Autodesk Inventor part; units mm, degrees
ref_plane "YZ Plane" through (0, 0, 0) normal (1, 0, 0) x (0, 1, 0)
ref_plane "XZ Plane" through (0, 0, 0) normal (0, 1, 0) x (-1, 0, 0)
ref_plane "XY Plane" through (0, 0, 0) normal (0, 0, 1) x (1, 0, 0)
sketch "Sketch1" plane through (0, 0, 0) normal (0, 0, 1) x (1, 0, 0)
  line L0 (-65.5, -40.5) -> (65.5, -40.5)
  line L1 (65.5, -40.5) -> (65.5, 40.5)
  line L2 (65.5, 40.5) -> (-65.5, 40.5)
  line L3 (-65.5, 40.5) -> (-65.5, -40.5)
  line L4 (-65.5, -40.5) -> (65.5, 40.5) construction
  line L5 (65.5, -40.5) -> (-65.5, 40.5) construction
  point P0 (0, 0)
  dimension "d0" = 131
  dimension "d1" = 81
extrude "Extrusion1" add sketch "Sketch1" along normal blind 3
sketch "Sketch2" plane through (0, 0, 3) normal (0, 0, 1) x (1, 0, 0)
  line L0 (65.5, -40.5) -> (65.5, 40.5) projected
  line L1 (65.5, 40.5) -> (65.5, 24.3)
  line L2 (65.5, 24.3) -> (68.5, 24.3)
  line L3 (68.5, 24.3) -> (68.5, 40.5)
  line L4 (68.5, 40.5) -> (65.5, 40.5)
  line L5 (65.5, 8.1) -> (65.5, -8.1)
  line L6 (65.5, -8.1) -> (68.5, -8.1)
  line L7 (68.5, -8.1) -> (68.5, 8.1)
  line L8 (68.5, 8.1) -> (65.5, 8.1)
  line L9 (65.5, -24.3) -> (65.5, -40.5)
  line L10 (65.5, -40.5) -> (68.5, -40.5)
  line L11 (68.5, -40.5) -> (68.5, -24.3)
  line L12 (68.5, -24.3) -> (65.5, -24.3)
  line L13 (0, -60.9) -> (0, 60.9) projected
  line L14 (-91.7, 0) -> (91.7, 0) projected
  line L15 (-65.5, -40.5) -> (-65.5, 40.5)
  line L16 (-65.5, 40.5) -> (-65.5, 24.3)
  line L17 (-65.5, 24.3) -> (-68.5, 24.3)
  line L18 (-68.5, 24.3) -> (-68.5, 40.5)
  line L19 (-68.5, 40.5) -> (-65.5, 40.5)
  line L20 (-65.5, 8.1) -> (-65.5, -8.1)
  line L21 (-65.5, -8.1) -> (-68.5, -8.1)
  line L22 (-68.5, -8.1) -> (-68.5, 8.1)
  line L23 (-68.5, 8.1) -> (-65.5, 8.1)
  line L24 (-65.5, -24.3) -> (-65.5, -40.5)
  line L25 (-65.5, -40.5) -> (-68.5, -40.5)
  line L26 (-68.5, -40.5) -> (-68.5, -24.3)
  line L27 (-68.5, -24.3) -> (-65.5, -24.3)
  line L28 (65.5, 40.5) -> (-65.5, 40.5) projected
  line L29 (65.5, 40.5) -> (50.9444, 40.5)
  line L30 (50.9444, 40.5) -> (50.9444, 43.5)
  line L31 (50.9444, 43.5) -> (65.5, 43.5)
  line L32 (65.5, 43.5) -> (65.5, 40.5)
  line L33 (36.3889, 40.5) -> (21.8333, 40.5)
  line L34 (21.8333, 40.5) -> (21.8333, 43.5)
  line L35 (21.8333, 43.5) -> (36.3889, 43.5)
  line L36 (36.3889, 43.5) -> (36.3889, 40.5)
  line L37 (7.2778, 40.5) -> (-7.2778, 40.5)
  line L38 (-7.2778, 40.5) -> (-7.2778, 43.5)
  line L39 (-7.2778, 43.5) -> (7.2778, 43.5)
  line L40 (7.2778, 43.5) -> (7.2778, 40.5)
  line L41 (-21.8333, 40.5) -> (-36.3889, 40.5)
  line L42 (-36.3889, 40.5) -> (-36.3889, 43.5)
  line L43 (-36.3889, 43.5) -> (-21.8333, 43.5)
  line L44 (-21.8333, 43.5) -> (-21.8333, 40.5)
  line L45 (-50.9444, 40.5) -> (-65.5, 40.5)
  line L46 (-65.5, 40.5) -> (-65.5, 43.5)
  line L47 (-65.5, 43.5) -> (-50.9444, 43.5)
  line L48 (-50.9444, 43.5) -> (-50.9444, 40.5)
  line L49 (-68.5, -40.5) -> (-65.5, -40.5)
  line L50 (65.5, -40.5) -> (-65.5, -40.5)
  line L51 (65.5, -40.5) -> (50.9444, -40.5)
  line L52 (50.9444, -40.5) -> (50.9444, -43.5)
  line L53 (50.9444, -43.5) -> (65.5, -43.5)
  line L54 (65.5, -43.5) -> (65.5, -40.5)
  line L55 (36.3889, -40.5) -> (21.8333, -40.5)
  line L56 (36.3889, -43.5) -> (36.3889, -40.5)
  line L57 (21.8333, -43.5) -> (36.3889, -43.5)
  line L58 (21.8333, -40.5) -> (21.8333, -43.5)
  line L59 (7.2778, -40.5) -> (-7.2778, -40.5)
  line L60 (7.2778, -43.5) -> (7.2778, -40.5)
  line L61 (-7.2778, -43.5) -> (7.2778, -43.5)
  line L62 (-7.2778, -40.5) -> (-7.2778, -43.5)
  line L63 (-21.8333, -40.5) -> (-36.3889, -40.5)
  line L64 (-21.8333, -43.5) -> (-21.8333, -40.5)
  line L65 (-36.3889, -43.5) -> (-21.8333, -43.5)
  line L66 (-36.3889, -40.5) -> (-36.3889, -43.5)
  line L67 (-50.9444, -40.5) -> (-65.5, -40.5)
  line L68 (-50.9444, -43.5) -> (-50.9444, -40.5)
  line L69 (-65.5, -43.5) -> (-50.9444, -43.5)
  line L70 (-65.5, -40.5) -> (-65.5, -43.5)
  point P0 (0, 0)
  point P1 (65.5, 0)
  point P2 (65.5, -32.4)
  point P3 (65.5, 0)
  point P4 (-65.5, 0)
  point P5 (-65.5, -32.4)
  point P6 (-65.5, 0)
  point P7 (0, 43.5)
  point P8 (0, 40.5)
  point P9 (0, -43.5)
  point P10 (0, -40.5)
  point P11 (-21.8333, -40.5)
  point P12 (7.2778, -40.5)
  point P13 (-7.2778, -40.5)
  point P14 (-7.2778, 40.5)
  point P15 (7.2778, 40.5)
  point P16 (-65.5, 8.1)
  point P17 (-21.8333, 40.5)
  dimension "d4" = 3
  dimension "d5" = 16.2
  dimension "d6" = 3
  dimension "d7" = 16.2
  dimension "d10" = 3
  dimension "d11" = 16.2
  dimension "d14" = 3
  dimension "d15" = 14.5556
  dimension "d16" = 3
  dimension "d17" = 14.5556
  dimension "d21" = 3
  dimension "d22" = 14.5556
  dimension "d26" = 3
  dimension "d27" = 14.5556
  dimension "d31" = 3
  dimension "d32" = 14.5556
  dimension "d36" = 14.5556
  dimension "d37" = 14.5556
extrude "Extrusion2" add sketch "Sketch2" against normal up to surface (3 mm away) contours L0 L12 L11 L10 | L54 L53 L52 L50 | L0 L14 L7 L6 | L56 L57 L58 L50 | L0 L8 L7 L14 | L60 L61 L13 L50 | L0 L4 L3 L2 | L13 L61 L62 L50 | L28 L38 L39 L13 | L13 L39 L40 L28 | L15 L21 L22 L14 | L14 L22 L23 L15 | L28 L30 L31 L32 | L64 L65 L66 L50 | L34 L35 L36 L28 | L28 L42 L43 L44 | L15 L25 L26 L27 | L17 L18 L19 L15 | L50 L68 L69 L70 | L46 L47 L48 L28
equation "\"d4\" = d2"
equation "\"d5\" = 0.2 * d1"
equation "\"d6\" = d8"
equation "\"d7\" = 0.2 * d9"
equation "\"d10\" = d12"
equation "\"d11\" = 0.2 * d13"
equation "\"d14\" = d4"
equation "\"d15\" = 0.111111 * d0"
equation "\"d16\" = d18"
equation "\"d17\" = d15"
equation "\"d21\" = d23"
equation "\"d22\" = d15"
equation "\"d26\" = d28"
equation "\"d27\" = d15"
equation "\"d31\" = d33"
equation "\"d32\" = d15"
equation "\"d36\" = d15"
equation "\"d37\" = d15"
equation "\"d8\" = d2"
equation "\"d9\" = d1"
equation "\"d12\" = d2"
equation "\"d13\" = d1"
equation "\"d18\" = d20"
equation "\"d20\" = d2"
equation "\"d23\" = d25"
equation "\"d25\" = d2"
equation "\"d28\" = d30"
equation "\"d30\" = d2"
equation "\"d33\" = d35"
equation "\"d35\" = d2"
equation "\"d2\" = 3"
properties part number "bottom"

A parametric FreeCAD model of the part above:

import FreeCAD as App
import Part
import Sketcher

V = App.Vector

doc = App.newDocument("Part")
body = doc.addObject("PartDesign::Body", "Body")

sketch1 = body.newObject("Sketcher::SketchObject", "Sketch")
sketch1.AttachmentSupport = (doc.getObject("XY_Plane"), [""])
sketch1.MapMode = "FlatFace"
sketch1.addGeometry(Part.LineSegment(V(-66, 40, 0), V(-66, -40, 0)), False)
sketch1.addGeometry(Part.LineSegment(V(-66, -40, 0), V(66, -40, 0)), False)
sketch1.addGeometry(Part.LineSegment(V(66, -40, 0), V(66, 40, 0)), False)
sketch1.addGeometry(Part.LineSegment(V(66, 40, 0), V(-66, 40, 0)), False)
sketch1.addConstraint(Sketcher.Constraint("Coincident", 0, 2, 1, 1))
sketch1.addConstraint(Sketcher.Constraint("Coincident", 1, 2, 2, 1))
sketch1.addConstraint(Sketcher.Constraint("Coincident", 2, 2, 3, 1))
sketch1.addConstraint(Sketcher.Constraint("Coincident", 3, 2, 0, 1))
sketch1.addConstraint(Sketcher.Constraint("Vertical", 0))
sketch1.addConstraint(Sketcher.Constraint("Horizontal", 1))
sketch1.addConstraint(Sketcher.Constraint("Vertical", 2))
sketch1.addConstraint(Sketcher.Constraint("Horizontal", 3))
sketch1.addConstraint(Sketcher.Constraint("Symmetric", 0, 2, 2, 2, -1, 1))
sketch1.addConstraint(Sketcher.Constraint("DistanceX", 1, 1, 1, 2, 131.0))
sketch1.addConstraint(Sketcher.Constraint("DistanceY", 0, 2, 0, 1, 81.0))
pad1 = body.newObject("PartDesign::Pad", "Pad")
pad1.Profile = sketch1
pad1.Length = 3

sketch2 = body.newObject("Sketcher::SketchObject", "Sketch001")
sketch2.AttachmentSupport = (doc.getObject("XY_Plane"), [""])
sketch2.MapMode = "FlatFace"
sketch2.AttachmentOffset = App.Placement(V(0, 0, 3), App.Rotation())
sketch2.addGeometry(Part.LineSegment(V(65.5, -24.3, 0), V(65.5, -40.5, 0)), False)
sketch2.addGeometry(Part.LineSegment(V(65.5, -40.5, 0), V(68.5, -40.5, 0)), False)
sketch2.addGeometry(Part.LineSegment(V(68.5, -40.5, 0), V(68.5, -24.3, 0)), False)
sketch2.addGeometry(Part.LineSegment(V(68.5, -24.3, 0), V(65.5, -24.3, 0)), False)
sketch2.addGeometry(Part.LineSegment(V(65.5, -43.5, 0), V(65.5, -40.5, 0)), False)
sketch2.addGeometry(Part.LineSegment(V(65.5, -40.5, 0), V(50.9, -40.5, 0)), False)
sketch2.addGeometry(Part.LineSegment(V(50.9, -40.5, 0), V(50.9, -43.5, 0)), False)
sketch2.addGeometry(Part.LineSegment(V(50.9, -43.5, 0), V(65.5, -43.5, 0)), False)
sketch2.addGeometry(Part.LineSegment(V(65.5, -8.1, 0), V(68.5, -8.1, 0)), False)
sketch2.addGeometry(Part.LineSegment(V(68.5, -8.1, 0), V(68.5, 8.1, 0)), False)
sketch2.addGeometry(Part.LineSegment(V(68.5, 8.1, 0), V(65.5, 8.1, 0)), False)
sketch2.addGeometry(Part.LineSegment(V(65.5, 8.1, 0), V(65.5, -8.1, 0)), False)
sketch2.addGeometry(Part.LineSegment(V(36.4, -43.5, 0), V(36.4, -40.5, 0)), False)
sketch2.addGeometry(Part.LineSegment(V(36.4, -40.5, 0), V(21.8, -40.5, 0)), False)
sketch2.addGeometry(Part.LineSegment(V(21.8, -40.5, 0), V(21.8, -43.5, 0)), False)
sketch2.addGeometry(Part.LineSegment(V(21.8, -43.5, 0), V(36.4, -43.5, 0)), False)
sketch2.addGeometry(Part.LineSegment(V(7.3, -43.5, 0), V(7.3, -40.5, 0)), False)
sketch2.addGeometry(Part.LineSegment(V(7.3, -40.5, 0), V(-7.3, -40.5, 0)), False)
sketch2.addGeometry(Part.LineSegment(V(-7.3, -40.5, 0), V(-7.3, -43.5, 0)), False)
sketch2.addGeometry(Part.LineSegment(V(-7.3, -43.5, 0), V(7.3, -43.5, 0)), False)
sketch2.addGeometry(Part.LineSegment(V(65.5, 40.5, 0), V(65.5, 24.3, 0)), False)
sketch2.addGeometry(Part.LineSegment(V(65.5, 24.3, 0), V(68.5, 24.3, 0)), False)
sketch2.addGeometry(Part.LineSegment(V(68.5, 24.3, 0), V(68.5, 40.5, 0)), False)
sketch2.addGeometry(Part.LineSegment(V(68.5, 40.5, 0), V(65.5, 40.5, 0)), False)
sketch2.addGeometry(Part.LineSegment(V(-7.3, 40.5, 0), V(7.3, 40.5, 0)), False)
sketch2.addGeometry(Part.LineSegment(V(7.3, 40.5, 0), V(7.3, 43.5, 0)), False)
sketch2.addGeometry(Part.LineSegment(V(7.3, 43.5, 0), V(-7.3, 43.5, 0)), False)
sketch2.addGeometry(Part.LineSegment(V(-7.3, 43.5, 0), V(-7.3, 40.5, 0)), False)
sketch2.addGeometry(Part.LineSegment(V(-65.5, -8.1, 0), V(-65.5, 8.1, 0)), False)
sketch2.addGeometry(Part.LineSegment(V(-65.5, 8.1, 0), V(-68.5, 8.1, 0)), False)
sketch2.addGeometry(Part.LineSegment(V(-68.5, 8.1, 0), V(-68.5, -8.1, 0)), False)
sketch2.addGeometry(Part.LineSegment(V(-68.5, -8.1, 0), V(-65.5, -8.1, 0)), False)
sketch2.addGeometry(Part.LineSegment(V(50.9, 40.5, 0), V(65.5, 40.5, 0)), False)
sketch2.addGeometry(Part.LineSegment(V(65.5, 40.5, 0), V(65.5, 43.5, 0)), False)
sketch2.addGeometry(Part.LineSegment(V(65.5, 43.5, 0), V(50.9, 43.5, 0)), False)
sketch2.addGeometry(Part.LineSegment(V(50.9, 43.5, 0), V(50.9, 40.5, 0)), False)
sketch2.addGeometry(Part.LineSegment(V(-21.8, -43.5, 0), V(-21.8, -40.5, 0)), False)
sketch2.addGeometry(Part.LineSegment(V(-21.8, -40.5, 0), V(-36.4, -40.5, 0)), False)
sketch2.addGeometry(Part.LineSegment(V(-36.4, -40.5, 0), V(-36.4, -43.5, 0)), False)
sketch2.addGeometry(Part.LineSegment(V(-36.4, -43.5, 0), V(-21.8, -43.5, 0)), False)
sketch2.addGeometry(Part.LineSegment(V(21.8, 43.5, 0), V(21.8, 40.5, 0)), False)
sketch2.addGeometry(Part.LineSegment(V(21.8, 40.5, 0), V(36.4, 40.5, 0)), False)
sketch2.addGeometry(Part.LineSegment(V(36.4, 40.5, 0), V(36.4, 43.5, 0)), False)
sketch2.addGeometry(Part.LineSegment(V(36.4, 43.5, 0), V(21.8, 43.5, 0)), False)
sketch2.addGeometry(Part.LineSegment(V(-36.4, 40.5, 0), V(-21.8, 40.5, 0)), False)
sketch2.addGeometry(Part.LineSegment(V(-21.8, 40.5, 0), V(-21.8, 43.5, 0)), False)
sketch2.addGeometry(Part.LineSegment(V(-21.8, 43.5, 0), V(-36.4, 43.5, 0)), False)
sketch2.addGeometry(Part.LineSegment(V(-36.4, 43.5, 0), V(-36.4, 40.5, 0)), False)
sketch2.addGeometry(Part.LineSegment(V(-65.5, -40.5, 0), V(-65.5, -24.3, 0)), False)
sketch2.addGeometry(Part.LineSegment(V(-65.5, -24.3, 0), V(-68.5, -24.3, 0)), False)
sketch2.addGeometry(Part.LineSegment(V(-68.5, -24.3, 0), V(-68.5, -40.5, 0)), False)
sketch2.addGeometry(Part.LineSegment(V(-68.5, -40.5, 0), V(-65.5, -40.5, 0)), False)
sketch2.addGeometry(Part.LineSegment(V(-68.5, 24.3, 0), V(-65.5, 24.3, 0)), False)
sketch2.addGeometry(Part.LineSegment(V(-65.5, 24.3, 0), V(-65.5, 40.5, 0)), False)
sketch2.addGeometry(Part.LineSegment(V(-65.5, 40.5, 0), V(-68.5, 40.5, 0)), False)
sketch2.addGeometry(Part.LineSegment(V(-68.5, 40.5, 0), V(-68.5, 24.3, 0)), False)
sketch2.addGeometry(Part.LineSegment(V(-50.9, -40.5, 0), V(-65.5, -40.5, 0)), False)
sketch2.addGeometry(Part.LineSegment(V(-65.5, -40.5, 0), V(-65.5, -43.5, 0)), False)
sketch2.addGeometry(Part.LineSegment(V(-65.5, -43.5, 0), V(-50.9, -43.5, 0)), False)
sketch2.addGeometry(Part.LineSegment(V(-50.9, -43.5, 0), V(-50.9, -40.5, 0)), False)
sketch2.addGeometry(Part.LineSegment(V(-65.5, 43.5, 0), V(-65.5, 40.5, 0)), False)
sketch2.addGeometry(Part.LineSegment(V(-65.5, 40.5, 0), V(-50.9, 40.5, 0)), False)
sketch2.addGeometry(Part.LineSegment(V(-50.9, 40.5, 0), V(-50.9, 43.5, 0)), False)
sketch2.addGeometry(Part.LineSegment(V(-50.9, 43.5, 0), V(-65.5, 43.5, 0)), False)
sketch2.addConstraint(Sketcher.Constraint("Coincident", 0, 2, 1, 1))
sketch2.addConstraint(Sketcher.Constraint("Coincident", 1, 2, 2, 1))
sketch2.addConstraint(Sketcher.Constraint("Coincident", 2, 2, 3, 1))
sketch2.addConstraint(Sketcher.Constraint("Coincident", 3, 2, 0, 1))
sketch2.addConstraint(Sketcher.Constraint("Coincident", 4, 2, 5, 1))
sketch2.addConstraint(Sketcher.Constraint("Coincident", 5, 2, 6, 1))
sketch2.addConstraint(Sketcher.Constraint("Coincident", 6, 2, 7, 1))
sketch2.addConstraint(Sketcher.Constraint("Coincident", 7, 2, 4, 1))
sketch2.addConstraint(Sketcher.Constraint("Coincident", 8, 2, 9, 1))
sketch2.addConstraint(Sketcher.Constraint("Coincident", 9, 2, 10, 1))
sketch2.addConstraint(Sketcher.Constraint("Coincident", 10, 2, 11, 1))
sketch2.addConstraint(Sketcher.Constraint("Coincident", 11, 2, 8, 1))
sketch2.addConstraint(Sketcher.Constraint("Coincident", 12, 2, 13, 1))
sketch2.addConstraint(Sketcher.Constraint("Coincident", 13, 2, 14, 1))
sketch2.addConstraint(Sketcher.Constraint("Coincident", 14, 2, 15, 1))
sketch2.addConstraint(Sketcher.Constraint("Coincident", 15, 2, 12, 1))
sketch2.addConstraint(Sketcher.Constraint("Coincident", 16, 2, 17, 1))
sketch2.addConstraint(Sketcher.Constraint("Coincident", 17, 2, 18, 1))
sketch2.addConstraint(Sketcher.Constraint("Coincident", 18, 2, 19, 1))
sketch2.addConstraint(Sketcher.Constraint("Coincident", 19, 2, 16, 1))
sketch2.addConstraint(Sketcher.Constraint("Coincident", 20, 2, 21, 1))
sketch2.addConstraint(Sketcher.Constraint("Coincident", 21, 2, 22, 1))
sketch2.addConstraint(Sketcher.Constraint("Coincident", 22, 2, 23, 1))
sketch2.addConstraint(Sketcher.Constraint("Coincident", 23, 2, 20, 1))
sketch2.addConstraint(Sketcher.Constraint("Coincident", 24, 2, 25, 1))
sketch2.addConstraint(Sketcher.Constraint("Coincident", 25, 2, 26, 1))
sketch2.addConstraint(Sketcher.Constraint("Coincident", 26, 2, 27, 1))
sketch2.addConstraint(Sketcher.Constraint("Coincident", 27, 2, 24, 1))
sketch2.addConstraint(Sketcher.Constraint("Coincident", 28, 2, 29, 1))
sketch2.addConstraint(Sketcher.Constraint("Coincident", 29, 2, 30, 1))
sketch2.addConstraint(Sketcher.Constraint("Coincident", 30, 2, 31, 1))
sketch2.addConstraint(Sketcher.Constraint("Coincident", 31, 2, 28, 1))
sketch2.addConstraint(Sketcher.Constraint("Coincident", 32, 2, 33, 1))
sketch2.addConstraint(Sketcher.Constraint("Coincident", 33, 2, 34, 1))
sketch2.addConstraint(Sketcher.Constraint("Coincident", 34, 2, 35, 1))
sketch2.addConstraint(Sketcher.Constraint("Coincident", 35, 2, 32, 1))
sketch2.addConstraint(Sketcher.Constraint("Coincident", 36, 2, 37, 1))
sketch2.addConstraint(Sketcher.Constraint("Coincident", 37, 2, 38, 1))
sketch2.addConstraint(Sketcher.Constraint("Coincident", 38, 2, 39, 1))
sketch2.addConstraint(Sketcher.Constraint("Coincident", 39, 2, 36, 1))
sketch2.addConstraint(Sketcher.Constraint("Coincident", 40, 2, 41, 1))
sketch2.addConstraint(Sketcher.Constraint("Coincident", 41, 2, 42, 1))
sketch2.addConstraint(Sketcher.Constraint("Coincident", 42, 2, 43, 1))
sketch2.addConstraint(Sketcher.Constraint("Coincident", 43, 2, 40, 1))
sketch2.addConstraint(Sketcher.Constraint("Coincident", 44, 2, 45, 1))
sketch2.addConstraint(Sketcher.Constraint("Coincident", 45, 2, 46, 1))
sketch2.addConstraint(Sketcher.Constraint("Coincident", 46, 2, 47, 1))
sketch2.addConstraint(Sketcher.Constraint("Coincident", 47, 2, 44, 1))
sketch2.addConstraint(Sketcher.Constraint("Coincident", 48, 2, 49, 1))
sketch2.addConstraint(Sketcher.Constraint("Coincident", 49, 2, 50, 1))
sketch2.addConstraint(Sketcher.Constraint("Coincident", 50, 2, 51, 1))
sketch2.addConstraint(Sketcher.Constraint("Coincident", 51, 2, 48, 1))
sketch2.addConstraint(Sketcher.Constraint("Coincident", 52, 2, 53, 1))
sketch2.addConstraint(Sketcher.Constraint("Coincident", 53, 2, 54, 1))
sketch2.addConstraint(Sketcher.Constraint("Coincident", 54, 2, 55, 1))
sketch2.addConstraint(Sketcher.Constraint("Coincident", 55, 2, 52, 1))
sketch2.addConstraint(Sketcher.Constraint("Coincident", 56, 2, 57, 1))
sketch2.addConstraint(Sketcher.Constraint("Coincident", 57, 2, 58, 1))
sketch2.addConstraint(Sketcher.Constraint("Coincident", 58, 2, 59, 1))
sketch2.addConstraint(Sketcher.Constraint("Coincident", 59, 2, 56, 1))
sketch2.addConstraint(Sketcher.Constraint("Coincident", 60, 2, 61, 1))
sketch2.addConstraint(Sketcher.Constraint("Coincident", 61, 2, 62, 1))
sketch2.addConstraint(Sketcher.Constraint("Coincident", 62, 2, 63, 1))
sketch2.addConstraint(Sketcher.Constraint("Coincident", 63, 2, 60, 1))
sketch2.addConstraint(Sketcher.Constraint("Vertical", 0))
sketch2.addConstraint(Sketcher.Constraint("Horizontal", 1))
sketch2.addConstraint(Sketcher.Constraint("Vertical", 2))
sketch2.addConstraint(Sketcher.Constraint("Horizontal", 3))
sketch2.addConstraint(Sketcher.Constraint("Vertical", 4))
sketch2.addConstraint(Sketcher.Constraint("Horizontal", 5))
sketch2.addConstraint(Sketcher.Constraint("Vertical", 6))
sketch2.addConstraint(Sketcher.Constraint("Horizontal", 7))
sketch2.addConstraint(Sketcher.Constraint("Horizontal", 8))
sketch2.addConstraint(Sketcher.Constraint("Vertical", 9))
sketch2.addConstraint(Sketcher.Constraint("Horizontal", 10))
sketch2.addConstraint(Sketcher.Constraint("Vertical", 11))
sketch2.addConstraint(Sketcher.Constraint("Vertical", 12))
sketch2.addConstraint(Sketcher.Constraint("Horizontal", 13))
sketch2.addConstraint(Sketcher.Constraint("Vertical", 14))
sketch2.addConstraint(Sketcher.Constraint("Horizontal", 15))
sketch2.addConstraint(Sketcher.Constraint("Vertical", 16))
sketch2.addConstraint(Sketcher.Constraint("Horizontal", 17))
sketch2.addConstraint(Sketcher.Constraint("Vertical", 18))
sketch2.addConstraint(Sketcher.Constraint("Horizontal", 19))
sketch2.addConstraint(Sketcher.Constraint("Vertical", 20))
sketch2.addConstraint(Sketcher.Constraint("Horizontal", 21))
sketch2.addConstraint(Sketcher.Constraint("Vertical", 22))
sketch2.addConstraint(Sketcher.Constraint("Horizontal", 23))
sketch2.addConstraint(Sketcher.Constraint("Horizontal", 24))
sketch2.addConstraint(Sketcher.Constraint("Vertical", 25))
sketch2.addConstraint(Sketcher.Constraint("Horizontal", 26))
sketch2.addConstraint(Sketcher.Constraint("Vertical", 27))
sketch2.addConstraint(Sketcher.Constraint("Vertical", 28))
sketch2.addConstraint(Sketcher.Constraint("Horizontal", 29))
sketch2.addConstraint(Sketcher.Constraint("Vertical", 30))
sketch2.addConstraint(Sketcher.Constraint("Horizontal", 31))
sketch2.addConstraint(Sketcher.Constraint("Horizontal", 32))
sketch2.addConstraint(Sketcher.Constraint("Vertical", 33))
sketch2.addConstraint(Sketcher.Constraint("Horizontal", 34))
sketch2.addConstraint(Sketcher.Constraint("Vertical", 35))
sketch2.addConstraint(Sketcher.Constraint("Vertical", 36))
sketch2.addConstraint(Sketcher.Constraint("Horizontal", 37))
sketch2.addConstraint(Sketcher.Constraint("Vertical", 38))
sketch2.addConstraint(Sketcher.Constraint("Horizontal", 39))
sketch2.addConstraint(Sketcher.Constraint("Vertical", 40))
sketch2.addConstraint(Sketcher.Constraint("Horizontal", 41))
sketch2.addConstraint(Sketcher.Constraint("Vertical", 42))
sketch2.addConstraint(Sketcher.Constraint("Horizontal", 43))
sketch2.addConstraint(Sketcher.Constraint("Horizontal", 44))
sketch2.addConstraint(Sketcher.Constraint("Vertical", 45))
sketch2.addConstraint(Sketcher.Constraint("Horizontal", 46))
sketch2.addConstraint(Sketcher.Constraint("Vertical", 47))
sketch2.addConstraint(Sketcher.Constraint("Vertical", 48))
sketch2.addConstraint(Sketcher.Constraint("Horizontal", 49))
sketch2.addConstraint(Sketcher.Constraint("Vertical", 50))
sketch2.addConstraint(Sketcher.Constraint("Horizontal", 51))
sketch2.addConstraint(Sketcher.Constraint("Horizontal", 52))
sketch2.addConstraint(Sketcher.Constraint("Vertical", 53))
sketch2.addConstraint(Sketcher.Constraint("Horizontal", 54))
sketch2.addConstraint(Sketcher.Constraint("Vertical", 55))
sketch2.addConstraint(Sketcher.Constraint("Horizontal", 56))
sketch2.addConstraint(Sketcher.Constraint("Vertical", 57))
sketch2.addConstraint(Sketcher.Constraint("Horizontal", 58))
sketch2.addConstraint(Sketcher.Constraint("Vertical", 59))
sketch2.addConstraint(Sketcher.Constraint("Vertical", 60))
sketch2.addConstraint(Sketcher.Constraint("Horizontal", 61))
sketch2.addConstraint(Sketcher.Constraint("Vertical", 62))
sketch2.addConstraint(Sketcher.Constraint("Horizontal", 63))
sketch2.addConstraint(Sketcher.Constraint("Coincident", 4, 2, 0, 2))
sketch2.addConstraint(Sketcher.Constraint("Coincident", 32, 2, 23, 2))
sketch2.addConstraint(Sketcher.Constraint("Coincident", 56, 2, 51, 2))
sketch2.addConstraint(Sketcher.Constraint("Coincident", 60, 2, 53, 2))
sketch2.addConstraint(Sketcher.Constraint("Symmetric", 17, 2, 24, 2, -1, 1))
sketch2.addConstraint(Sketcher.Constraint("Symmetric", 19, 2, 26, 2, -1, 1))
sketch2.addConstraint(Sketcher.Constraint("Symmetric", 11, 2, 28, 2, -1, 1))
sketch2.addConstraint(Sketcher.Constraint("Symmetric", 9, 2, 30, 2, -1, 1))
sketch2.addConstraint(Sketcher.Constraint("Symmetric", 36, 2, 40, 2, -1, 1))
sketch2.addConstraint(Sketcher.Constraint("Symmetric", 38, 2, 42, 2, -1, 1))
sketch2.addConstraint(Sketcher.Constraint("Symmetric", 13, 2, 44, 2, -1, 1))
sketch2.addConstraint(Sketcher.Constraint("Symmetric", 15, 2, 46, 2, -1, 1))
sketch2.addConstraint(Sketcher.Constraint("Symmetric", 20, 2, 48, 2, -1, 1))
sketch2.addConstraint(Sketcher.Constraint("Symmetric", 22, 2, 50, 2, -1, 1))
sketch2.addConstraint(Sketcher.Constraint("Symmetric", 3, 2, 52, 2, -1, 1))
sketch2.addConstraint(Sketcher.Constraint("Symmetric", 1, 2, 54, 2, -1, 1))
sketch2.addConstraint(Sketcher.Constraint("Symmetric", 34, 2, 58, 2, -1, 1))
sketch2.addConstraint(Sketcher.Constraint("Symmetric", 6, 2, 62, 2, -1, 1))
sketch2.addConstraint(Sketcher.Constraint("Symmetric", 13, 2, 36, 2, -2))
sketch2.addConstraint(Sketcher.Constraint("Symmetric", 15, 2, 38, 2, -2))
sketch2.addConstraint(Sketcher.Constraint("Symmetric", 3, 2, 48, 2, -2))
sketch2.addConstraint(Sketcher.Constraint("Symmetric", 1, 2, 50, 2, -2))
sketch2.addConstraint(Sketcher.Constraint("Symmetric", 6, 2, 58, 2, -2))
sketch2.addConstraint(Sketcher.Constraint("Horizontal", 5, 2, 12, 2))
sketch2.addConstraint(Sketcher.Constraint("Horizontal", 7, 2, 14, 2))
sketch2.addConstraint(Sketcher.Constraint("Horizontal", 13, 2, 16, 2))
sketch2.addConstraint(Sketcher.Constraint("Horizontal", 15, 2, 18, 2))
sketch2.addConstraint(Sketcher.Constraint("Horizontal", 10, 2, 28, 2))
sketch2.addConstraint(Sketcher.Constraint("Vertical", 2, 2, 8, 2))
sketch2.addConstraint(Sketcher.Constraint("Vertical", 7, 2, 10, 2))
sketch2.addConstraint(Sketcher.Constraint("Vertical", 19, 2, 24, 2))
sketch2.addConstraint(Sketcher.Constraint("Equal", 7, 13))
sketch2.addConstraint(Sketcher.Constraint("Equal", 15, 17))
sketch2.addConstraint(Sketcher.Constraint("Equal", 54, 4))
sketch2.addConstraint(Sketcher.Constraint("Equal", 2, 9))
sketch2.addConstraint(Sketcher.Constraint("DistanceX", 1, 1, 1, 2, 3.0))
sketch2.addConstraint(Sketcher.Constraint("DistanceY", 0, 2, 0, 1, 16.2))
sketch2.addConstraint(Sketcher.Constraint("DistanceX", 5, 2, 5, 1, 14.5556))
sketch2.addConstraint(Sketcher.Constraint("DistanceX", -1, 1, 0, 2, 65.5))
sketch2.addConstraint(Sketcher.Constraint("DistanceY", 0, 2, -1, 1, 40.5))
sketch2.addConstraint(Sketcher.Constraint("DistanceX", -1, 1, 12, 2, 36.389))
pad2 = body.newObject("PartDesign::Pad", "Pad001")
pad2.Profile = sketch2
pad2.Length = 3
pad2.Reversed = True

doc.recompute()
